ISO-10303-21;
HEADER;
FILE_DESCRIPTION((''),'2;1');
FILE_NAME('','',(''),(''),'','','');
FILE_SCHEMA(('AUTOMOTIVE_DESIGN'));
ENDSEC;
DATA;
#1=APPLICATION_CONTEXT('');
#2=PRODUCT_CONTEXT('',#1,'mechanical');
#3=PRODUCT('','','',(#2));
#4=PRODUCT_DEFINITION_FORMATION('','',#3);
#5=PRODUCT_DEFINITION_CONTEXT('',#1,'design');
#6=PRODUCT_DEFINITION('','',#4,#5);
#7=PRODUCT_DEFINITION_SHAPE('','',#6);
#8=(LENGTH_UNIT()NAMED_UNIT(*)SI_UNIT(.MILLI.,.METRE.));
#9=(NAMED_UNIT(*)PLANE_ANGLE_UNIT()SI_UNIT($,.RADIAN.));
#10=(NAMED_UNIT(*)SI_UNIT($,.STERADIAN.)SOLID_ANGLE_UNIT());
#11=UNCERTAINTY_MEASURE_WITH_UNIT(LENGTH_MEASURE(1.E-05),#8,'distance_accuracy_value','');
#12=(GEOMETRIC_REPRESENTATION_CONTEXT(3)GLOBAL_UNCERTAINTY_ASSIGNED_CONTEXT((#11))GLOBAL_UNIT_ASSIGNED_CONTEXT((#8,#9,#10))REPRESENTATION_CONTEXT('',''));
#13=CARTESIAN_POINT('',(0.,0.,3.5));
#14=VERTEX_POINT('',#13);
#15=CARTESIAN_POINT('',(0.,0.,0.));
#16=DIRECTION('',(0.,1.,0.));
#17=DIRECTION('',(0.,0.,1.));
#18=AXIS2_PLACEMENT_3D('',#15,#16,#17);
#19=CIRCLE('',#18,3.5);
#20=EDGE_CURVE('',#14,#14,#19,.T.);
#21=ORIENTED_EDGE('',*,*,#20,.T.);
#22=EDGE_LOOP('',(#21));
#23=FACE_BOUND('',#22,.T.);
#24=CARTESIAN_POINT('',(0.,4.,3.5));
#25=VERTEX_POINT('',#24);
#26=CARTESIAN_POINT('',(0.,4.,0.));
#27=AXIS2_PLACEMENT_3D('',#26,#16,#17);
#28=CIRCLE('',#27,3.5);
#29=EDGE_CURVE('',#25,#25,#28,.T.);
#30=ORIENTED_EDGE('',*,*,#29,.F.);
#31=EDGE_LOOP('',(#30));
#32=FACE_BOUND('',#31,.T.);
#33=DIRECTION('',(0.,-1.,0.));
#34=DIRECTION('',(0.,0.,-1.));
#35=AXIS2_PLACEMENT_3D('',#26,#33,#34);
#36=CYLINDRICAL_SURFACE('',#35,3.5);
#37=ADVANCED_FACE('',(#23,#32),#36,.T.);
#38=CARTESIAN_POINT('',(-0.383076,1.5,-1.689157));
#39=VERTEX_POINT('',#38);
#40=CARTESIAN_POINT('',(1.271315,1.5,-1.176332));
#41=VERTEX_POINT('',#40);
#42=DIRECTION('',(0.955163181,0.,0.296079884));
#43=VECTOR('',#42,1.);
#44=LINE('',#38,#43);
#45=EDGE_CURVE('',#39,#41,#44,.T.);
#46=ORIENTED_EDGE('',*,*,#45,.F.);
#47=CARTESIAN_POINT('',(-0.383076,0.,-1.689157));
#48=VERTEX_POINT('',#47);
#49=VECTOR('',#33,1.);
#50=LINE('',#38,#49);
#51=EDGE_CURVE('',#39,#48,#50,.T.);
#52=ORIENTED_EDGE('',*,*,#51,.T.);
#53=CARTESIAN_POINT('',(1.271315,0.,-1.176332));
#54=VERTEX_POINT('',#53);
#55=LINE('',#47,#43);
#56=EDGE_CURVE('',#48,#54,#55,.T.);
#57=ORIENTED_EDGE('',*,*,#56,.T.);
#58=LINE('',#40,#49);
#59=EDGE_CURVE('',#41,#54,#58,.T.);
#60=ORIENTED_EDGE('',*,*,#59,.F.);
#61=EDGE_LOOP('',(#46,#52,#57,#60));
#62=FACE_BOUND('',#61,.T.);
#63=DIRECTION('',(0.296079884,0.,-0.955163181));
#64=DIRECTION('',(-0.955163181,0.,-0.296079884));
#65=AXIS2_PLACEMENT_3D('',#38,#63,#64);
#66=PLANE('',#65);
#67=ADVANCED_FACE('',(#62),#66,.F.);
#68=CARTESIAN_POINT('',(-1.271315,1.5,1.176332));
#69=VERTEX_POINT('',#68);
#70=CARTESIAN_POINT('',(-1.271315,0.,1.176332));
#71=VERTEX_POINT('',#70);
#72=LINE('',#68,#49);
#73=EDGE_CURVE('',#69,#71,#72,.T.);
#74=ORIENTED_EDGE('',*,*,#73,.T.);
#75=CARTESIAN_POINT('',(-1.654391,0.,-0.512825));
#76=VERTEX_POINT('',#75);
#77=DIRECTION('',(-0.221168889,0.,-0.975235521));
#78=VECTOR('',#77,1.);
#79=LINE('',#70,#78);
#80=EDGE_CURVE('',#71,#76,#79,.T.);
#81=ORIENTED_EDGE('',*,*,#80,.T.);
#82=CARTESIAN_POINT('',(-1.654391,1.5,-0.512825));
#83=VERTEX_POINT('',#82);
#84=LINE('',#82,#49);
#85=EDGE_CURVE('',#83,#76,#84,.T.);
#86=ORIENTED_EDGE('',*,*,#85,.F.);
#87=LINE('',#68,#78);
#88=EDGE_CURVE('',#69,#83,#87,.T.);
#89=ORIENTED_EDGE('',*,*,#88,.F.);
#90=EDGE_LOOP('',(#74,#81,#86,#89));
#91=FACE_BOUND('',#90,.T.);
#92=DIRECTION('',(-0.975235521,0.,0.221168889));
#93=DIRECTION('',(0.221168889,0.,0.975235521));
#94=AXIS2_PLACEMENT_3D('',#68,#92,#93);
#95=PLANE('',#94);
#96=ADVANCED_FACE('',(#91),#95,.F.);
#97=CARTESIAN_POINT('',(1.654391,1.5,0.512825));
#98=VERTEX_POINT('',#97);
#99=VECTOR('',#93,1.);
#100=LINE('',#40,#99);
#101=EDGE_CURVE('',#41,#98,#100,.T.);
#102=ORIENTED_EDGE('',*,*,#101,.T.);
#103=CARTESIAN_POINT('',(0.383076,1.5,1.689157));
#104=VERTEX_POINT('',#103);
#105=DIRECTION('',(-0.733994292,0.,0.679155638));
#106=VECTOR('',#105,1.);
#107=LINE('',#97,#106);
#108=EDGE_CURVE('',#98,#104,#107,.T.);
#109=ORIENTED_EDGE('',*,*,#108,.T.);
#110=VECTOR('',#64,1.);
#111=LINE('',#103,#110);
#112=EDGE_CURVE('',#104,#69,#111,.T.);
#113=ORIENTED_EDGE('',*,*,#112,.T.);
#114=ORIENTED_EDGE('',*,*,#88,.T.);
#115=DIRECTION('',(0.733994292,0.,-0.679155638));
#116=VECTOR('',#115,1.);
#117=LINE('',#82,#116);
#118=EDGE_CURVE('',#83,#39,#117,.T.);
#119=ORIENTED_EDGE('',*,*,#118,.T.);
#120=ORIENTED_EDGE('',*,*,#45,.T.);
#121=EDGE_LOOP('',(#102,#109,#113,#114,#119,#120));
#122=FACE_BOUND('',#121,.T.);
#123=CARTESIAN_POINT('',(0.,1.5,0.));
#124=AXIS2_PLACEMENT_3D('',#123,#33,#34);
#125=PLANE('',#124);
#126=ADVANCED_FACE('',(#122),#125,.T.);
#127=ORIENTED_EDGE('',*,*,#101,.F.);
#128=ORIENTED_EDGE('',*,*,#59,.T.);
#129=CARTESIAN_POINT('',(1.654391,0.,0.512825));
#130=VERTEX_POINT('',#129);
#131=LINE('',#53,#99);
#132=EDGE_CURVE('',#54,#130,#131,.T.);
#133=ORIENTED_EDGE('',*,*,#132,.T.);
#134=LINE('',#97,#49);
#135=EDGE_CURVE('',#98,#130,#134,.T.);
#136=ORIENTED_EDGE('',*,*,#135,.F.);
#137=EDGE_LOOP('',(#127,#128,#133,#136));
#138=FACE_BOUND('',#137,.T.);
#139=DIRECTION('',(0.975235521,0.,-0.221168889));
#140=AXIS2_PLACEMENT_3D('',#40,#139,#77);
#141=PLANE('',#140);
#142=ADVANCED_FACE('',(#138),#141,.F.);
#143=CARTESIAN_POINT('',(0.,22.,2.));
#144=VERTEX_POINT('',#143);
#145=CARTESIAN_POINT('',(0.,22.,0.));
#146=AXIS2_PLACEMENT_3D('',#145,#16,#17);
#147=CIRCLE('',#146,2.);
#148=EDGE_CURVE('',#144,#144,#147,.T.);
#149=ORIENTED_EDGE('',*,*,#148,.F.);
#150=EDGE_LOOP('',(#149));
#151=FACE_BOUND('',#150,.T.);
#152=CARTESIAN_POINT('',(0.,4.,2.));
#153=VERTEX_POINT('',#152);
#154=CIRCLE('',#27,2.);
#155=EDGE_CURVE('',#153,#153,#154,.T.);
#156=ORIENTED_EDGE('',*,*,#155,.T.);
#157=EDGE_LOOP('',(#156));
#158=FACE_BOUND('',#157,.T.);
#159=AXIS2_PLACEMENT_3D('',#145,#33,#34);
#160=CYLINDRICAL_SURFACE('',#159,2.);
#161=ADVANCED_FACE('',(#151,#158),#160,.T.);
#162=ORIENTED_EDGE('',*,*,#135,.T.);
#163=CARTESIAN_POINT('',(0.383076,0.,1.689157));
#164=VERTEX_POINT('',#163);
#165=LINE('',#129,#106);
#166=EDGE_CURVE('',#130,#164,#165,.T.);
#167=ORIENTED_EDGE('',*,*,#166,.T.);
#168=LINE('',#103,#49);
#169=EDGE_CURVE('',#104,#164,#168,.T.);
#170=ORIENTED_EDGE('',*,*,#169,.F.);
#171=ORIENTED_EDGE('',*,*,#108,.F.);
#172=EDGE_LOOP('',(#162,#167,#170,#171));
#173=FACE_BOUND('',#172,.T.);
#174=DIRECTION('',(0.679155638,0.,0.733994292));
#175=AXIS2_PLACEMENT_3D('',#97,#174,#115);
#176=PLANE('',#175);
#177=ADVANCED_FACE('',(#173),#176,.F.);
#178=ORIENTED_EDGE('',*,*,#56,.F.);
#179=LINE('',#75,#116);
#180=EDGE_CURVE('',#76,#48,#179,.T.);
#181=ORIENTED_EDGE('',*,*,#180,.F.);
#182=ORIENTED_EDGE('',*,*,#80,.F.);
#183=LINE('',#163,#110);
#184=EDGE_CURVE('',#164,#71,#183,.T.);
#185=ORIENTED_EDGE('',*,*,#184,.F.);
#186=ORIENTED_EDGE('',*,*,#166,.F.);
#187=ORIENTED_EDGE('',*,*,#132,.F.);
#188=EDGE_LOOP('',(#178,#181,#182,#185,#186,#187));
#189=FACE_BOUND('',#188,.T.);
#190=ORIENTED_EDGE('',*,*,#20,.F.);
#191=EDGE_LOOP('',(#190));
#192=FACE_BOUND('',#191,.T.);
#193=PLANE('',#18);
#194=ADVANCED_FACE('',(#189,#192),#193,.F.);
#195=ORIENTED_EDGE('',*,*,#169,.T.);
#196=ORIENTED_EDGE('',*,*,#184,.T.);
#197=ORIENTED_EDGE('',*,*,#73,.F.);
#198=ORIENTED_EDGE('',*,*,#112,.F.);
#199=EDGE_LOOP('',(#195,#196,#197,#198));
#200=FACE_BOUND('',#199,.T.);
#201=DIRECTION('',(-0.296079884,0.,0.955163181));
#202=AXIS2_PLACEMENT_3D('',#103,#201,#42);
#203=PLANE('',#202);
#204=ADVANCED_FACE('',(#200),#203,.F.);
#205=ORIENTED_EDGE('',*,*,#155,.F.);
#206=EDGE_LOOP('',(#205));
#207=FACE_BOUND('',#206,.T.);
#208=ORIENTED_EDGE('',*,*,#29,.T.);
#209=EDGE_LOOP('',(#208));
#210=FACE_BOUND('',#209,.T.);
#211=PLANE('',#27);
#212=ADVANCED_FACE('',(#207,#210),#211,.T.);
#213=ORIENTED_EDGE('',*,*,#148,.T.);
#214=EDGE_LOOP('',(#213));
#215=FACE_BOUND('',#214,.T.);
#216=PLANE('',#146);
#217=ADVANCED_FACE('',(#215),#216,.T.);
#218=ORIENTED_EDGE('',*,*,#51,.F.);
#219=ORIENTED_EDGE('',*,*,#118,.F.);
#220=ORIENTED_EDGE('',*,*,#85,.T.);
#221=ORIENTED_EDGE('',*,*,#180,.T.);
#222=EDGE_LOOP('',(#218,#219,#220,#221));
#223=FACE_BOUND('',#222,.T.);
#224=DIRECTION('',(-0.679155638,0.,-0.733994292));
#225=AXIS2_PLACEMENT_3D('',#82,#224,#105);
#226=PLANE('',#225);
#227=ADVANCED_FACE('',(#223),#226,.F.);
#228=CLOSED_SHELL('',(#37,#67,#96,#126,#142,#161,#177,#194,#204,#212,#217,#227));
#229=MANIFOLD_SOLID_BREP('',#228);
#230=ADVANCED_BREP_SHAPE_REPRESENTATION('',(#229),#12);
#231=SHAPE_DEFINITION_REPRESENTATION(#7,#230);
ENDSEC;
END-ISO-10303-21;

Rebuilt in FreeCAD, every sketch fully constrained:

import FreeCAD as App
import Part
import Sketcher
from FreeCAD import Vector


def add_polygon(sketch, points):
    """Adds a closed chain of lines whose ends are joined by coincident constraints."""
    first, n = sketch.GeometryCount, len(points)
    for a, b in zip(points, points[1:] + points[:1]):
        sketch.addGeometry(Part.LineSegment(App.Vector(*a, 0), App.Vector(*b, 0)), False)
    for i in range(n):
        sketch.addConstraint(Sketcher.Constraint("Coincident", first + i, 2, first + (i + 1) % n, 1))

doc = App.newDocument("Part")
body = doc.addObject("PartDesign::Body", "Body")

# Sketch on XZ plane
sketch1 = body.newObject("Sketcher::SketchObject", "Sketch")
sketch1.AttachmentSupport = (doc.getObject("XZ_Plane"), [""])
sketch1.MapMode = "FlatFace"
sketch1.addGeometry(Part.Circle(Vector(0, 0, 0), Vector(0, 0, 1), 3.5), False)
sketch1.addConstraint(Sketcher.Constraint("Coincident", 0, 3, -1, 1))
sketch1.addConstraint(Sketcher.Constraint("Diameter", 0, 7.0))
pad1 = body.newObject("PartDesign::Pad", "Pad")
pad1.Profile = sketch1
pad1.Length = 4
pad1.Reversed = True

# Sketch on XZ plane
sketch2 = body.newObject("Sketcher::SketchObject", "Sketch001")
sketch2.AttachmentSupport = (doc.getObject("XZ_Plane"), [""])
sketch2.MapMode = "FlatFace"
sketch2.AttachmentOffset = App.Placement(Vector(0, 0, -4), App.Rotation())
sketch2.addGeometry(Part.Circle(Vector(0, 0, 0), Vector(0, 0, 1), 2), False)
sketch2.addConstraint(Sketcher.Constraint("Coincident", 0, 3, -1, 1))
sketch2.addConstraint(Sketcher.Constraint("Diameter", 0, 4.0))
pad2 = body.newObject("PartDesign::Pad", "Pad001")
pad2.Profile = sketch2
pad2.Length = 18
pad2.Reversed = True

# Sketch on XZ plane
sketch3 = body.newObject("Sketcher::SketchObject", "Sketch002")
sketch3.AttachmentSupport = (doc.getObject("XZ_Plane"), [""])
sketch3.MapMode = "FlatFace"
add_polygon(sketch3, [(1.271315, -1.176332), (1.654391, 0.512825), (0.383076, 1.689157), (-1.271315, 1.176332), (-1.654391, -0.512825), (-0.383076, -1.689157)])  # lines 0-5
sketch3.addConstraint(Sketcher.Constraint("Symmetric", 0, 2, 3, 2, -1, 1))
sketch3.addConstraint(Sketcher.Constraint("Symmetric", 1, 2, 4, 2, -1, 1))
sketch3.addConstraint(Sketcher.Constraint("Symmetric", 2, 2, 5, 2, -1, 1))
sketch3.addConstraint(Sketcher.Constraint("Equal", 0, 1))
sketch3.addConstraint(Sketcher.Constraint("Equal", 1, 2))
sketch3.addConstraint(Sketcher.Constraint("Distance", 0, 1.732051))
sketch3.addConstraint(Sketcher.Constraint("DistanceX", -1, 1, 0, 2, 1.654391))
sketch3.addConstraint(Sketcher.Constraint("DistanceX", 2, 2, 1, 2, 1.654391))
sketch3.addConstraint(Sketcher.Constraint("DistanceY", 3, 2, 0, 2, 1.025651))
pocket1 = body.newObject("PartDesign::Pocket", "Pocket")
pocket1.Profile = sketch3
pocket1.Length = 1.5

doc.recompute()
